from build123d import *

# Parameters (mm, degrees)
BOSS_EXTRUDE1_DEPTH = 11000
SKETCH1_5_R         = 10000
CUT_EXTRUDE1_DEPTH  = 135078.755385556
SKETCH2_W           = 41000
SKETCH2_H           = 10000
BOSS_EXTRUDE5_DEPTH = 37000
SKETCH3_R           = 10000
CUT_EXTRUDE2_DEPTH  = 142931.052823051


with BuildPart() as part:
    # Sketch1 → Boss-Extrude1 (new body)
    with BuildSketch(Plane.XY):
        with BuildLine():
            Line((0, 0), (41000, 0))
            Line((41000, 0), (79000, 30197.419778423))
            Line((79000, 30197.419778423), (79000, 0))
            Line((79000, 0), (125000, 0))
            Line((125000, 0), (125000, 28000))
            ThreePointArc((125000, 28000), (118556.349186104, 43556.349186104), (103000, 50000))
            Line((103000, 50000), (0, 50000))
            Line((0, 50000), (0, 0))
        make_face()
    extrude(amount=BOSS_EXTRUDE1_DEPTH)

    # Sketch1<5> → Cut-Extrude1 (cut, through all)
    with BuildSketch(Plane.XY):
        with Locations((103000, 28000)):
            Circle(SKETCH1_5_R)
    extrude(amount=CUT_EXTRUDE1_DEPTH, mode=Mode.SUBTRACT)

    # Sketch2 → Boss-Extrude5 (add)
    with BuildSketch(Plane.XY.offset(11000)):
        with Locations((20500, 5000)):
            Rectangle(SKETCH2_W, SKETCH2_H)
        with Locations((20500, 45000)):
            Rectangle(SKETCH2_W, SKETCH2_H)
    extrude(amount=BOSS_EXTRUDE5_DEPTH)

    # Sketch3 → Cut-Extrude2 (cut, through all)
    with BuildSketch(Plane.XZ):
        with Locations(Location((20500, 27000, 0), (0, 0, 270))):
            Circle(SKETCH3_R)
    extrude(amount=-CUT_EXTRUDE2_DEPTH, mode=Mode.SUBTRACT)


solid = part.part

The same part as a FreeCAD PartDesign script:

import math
import FreeCAD as App
import Part
import Sketcher

V = App.Vector
Q = App.Units.Quantity


def add_polygon(sketch, points):
    """Adds a closed chain of lines whose ends are joined by coincident constraints."""
    first, n = sketch.GeometryCount, len(points)
    for a, b in zip(points, points[1:] + points[:1]):
        sketch.addGeometry(Part.LineSegment(App.Vector(*a, 0), App.Vector(*b, 0)), False)
    for i in range(n):
        sketch.addConstraint(Sketcher.Constraint("Coincident", first + i, 2, first + (i + 1) % n, 1))

doc = App.newDocument("Part")
params = doc.addObject("Spreadsheet::Sheet", "Params")
for row, (alias, value) in enumerate([
    ("sketch1_radius", "22000 mm"),
    ("sketch1_width", "41000 mm"),
    ("sketch1_width2", "46000 mm"),
    ("sketch1_width3", "103000 mm"),
    ("sketch1_height", "28000 mm"),
    ("pad1_length", "11000 mm"),
    ("sketch2_diameter", "20000 mm"),
    ("sketch3_width", "41000 mm"),
    ("sketch3_height", "10000 mm"),
    ("pad2_length", "37000 mm"),
    ("sketch4_diameter", "20000 mm"),
], start=1):
    params.set(f"A{row}", alias)
    params.set(f"B{row}", "=" + value)
    params.setAlias(f"B{row}", alias)

body = doc.addObject("PartDesign::Body", "Body")

sketch1 = body.newObject("Sketcher::SketchObject", "Sketch")
sketch1.AttachmentSupport = (doc.getObject("XY_Plane"), [""])
sketch1.MapMode = "FlatFace"
sketch1.addGeometry([
    Part.LineSegment(V(0, 0, 0), V(41000, 0, 0)),
    Part.LineSegment(V(41000, 0, 0), V(79000, 30197, 0)),
    Part.LineSegment(V(79000, 30197, 0), V(79000, 0, 0)),
    Part.LineSegment(V(79000, 0, 0), V(125000, 0, 0)),
    Part.LineSegment(V(125000, 0, 0), V(125000, 28000, 0)),
    Part.ArcOfCircle(Part.Circle(V(103000, 28000, 0), V(0, 0, 1), 22000), math.radians(0), math.radians(90)),
    Part.LineSegment(V(103000, 50000, 0), V(0, 50000, 0)),
    Part.LineSegment(V(0, 50000, 0), V(0, 0, 0)),
], False)
sketch1.addConstraint([
    Sketcher.Constraint("Coincident", 0, 2, 1, 1),
    Sketcher.Constraint("Coincident", 1, 2, 2, 1),
    Sketcher.Constraint("Coincident", 2, 2, 3, 1),
    Sketcher.Constraint("Coincident", 3, 2, 4, 1),
    Sketcher.Constraint("Coincident", 4, 2, 5, 1),
    Sketcher.Constraint("Coincident", 5, 2, 6, 1),
    Sketcher.Constraint("Coincident", 6, 2, 7, 1),
    Sketcher.Constraint("Coincident", 7, 2, 0, 1),
    Sketcher.Constraint("Horizontal", 0),
    Sketcher.Constraint("Vertical", 2),
    Sketcher.Constraint("Horizontal", 3),
    Sketcher.Constraint("Vertical", 4),
    Sketcher.Constraint("Horizontal", 6),
    Sketcher.Constraint("Vertical", 7),
    Sketcher.Constraint("Coincident", 7, 2, -1, 1),
    Sketcher.Constraint("PointOnObject", 2, 2, -1),
    Sketcher.Constraint("Horizontal", 5, 3, 4, 2),
    Sketcher.Constraint("Radius", 5, Q("22000 mm")),
    Sketcher.Constraint("DistanceX", 0, 1, 0, 2, Q("41000 mm")),
    Sketcher.Constraint("DistanceX", 3, 1, 3, 2, Q("46000 mm")),
    Sketcher.Constraint("DistanceX", 6, 2, 6, 1, Q("103000 mm")),
    Sketcher.Constraint("DistanceY", 4, 1, 4, 2, Q("28000 mm")),
    Sketcher.Constraint("DistanceX", -1, 1, 5, 3, Q("103000 mm")),
    Sketcher.Constraint("DistanceY", 2, 2, 2, 1, Q("30197.419778 mm")),
])
sketch1.setExpression("Constraints[17]", "Params.sketch1_radius")
sketch1.setExpression("Constraints[18]", "Params.sketch1_width")
sketch1.setExpression("Constraints[19]", "Params.sketch1_width2")
sketch1.setExpression("Constraints[20]", "Params.sketch1_width3")
sketch1.setExpression("Constraints[21]", "Params.sketch1_height")
pad1 = body.newObject("PartDesign::Pad", "Pad")
pad1.Profile = sketch1
pad1.setExpression("Length", "Params.pad1_length")

sketch2 = body.newObject("Sketcher::SketchObject", "Sketch001")
sketch2.AttachmentSupport = (doc.getObject("XY_Plane"), [""])
sketch2.MapMode = "FlatFace"
sketch2.addGeometry(Part.Circle(V(103000, 28000, 0), V(0, 0, 1), 10000), False)
sketch2.addConstraint([
    Sketcher.Constraint("Diameter", 0, Q("20000 mm")),
    Sketcher.Constraint("DistanceX", -1, 1, 0, 3, Q("103000 mm")),
    Sketcher.Constraint("DistanceY", -1, 1, 0, 3, Q("28000 mm")),
])
sketch2.setExpression("Constraints[0]", "Params.sketch2_diameter")
pocket1 = body.newObject("PartDesign::Pocket", "Pocket")
pocket1.Profile = sketch2
pocket1.Type = "ThroughAll"
pocket1.Reversed = True

sketch3 = body.newObject("Sketcher::SketchObject", "Sketch002")
sketch3.AttachmentSupport = (doc.getObject("XY_Plane"), [""])
sketch3.MapMode = "FlatFace"
sketch3.AttachmentOffset = App.Placement(V(0, 0, 11000), App.Rotation())
add_polygon(sketch3, [(0, 10000), (0, 0), (41000, 0), (41000, 10000)])
add_polygon(sketch3, [(0, 50000), (0, 40000), (41000, 40000), (41000, 50000)])
sketch3.addConstraint([
    Sketcher.Constraint("Vertical", 0),
    Sketcher.Constraint("Horizontal", 1),
    Sketcher.Constraint("Vertical", 2),
    Sketcher.Constraint("Horizontal", 3),
    Sketcher.Constraint("Vertical", 4),
    Sketcher.Constraint("Horizontal", 5),
    Sketcher.Constraint("Vertical", 6),
    Sketcher.Constraint("Horizontal", 7),
    Sketcher.Constraint("Coincident", 0, 2, -1, 1),
    Sketcher.Constraint("PointOnObject", 4, 2, -2),
    Sketcher.Constraint("Vertical", 2, 2, 5, 2),
    Sketcher.Constraint("Equal", 2, 4),
    Sketcher.Constraint("DistanceX", 1, 1, 1, 2, Q("41000 mm")),
    Sketcher.Constraint("DistanceY", 0, 2, 0, 1, Q("10000 mm")),
    Sketcher.Constraint("DistanceY", -1, 1, 4, 2, Q("40000 mm")),
])
sketch3.setExpression("Constraints[20]", "Params.sketch3_width")
sketch3.setExpression("Constraints[21]", "Params.sketch3_height")
pad2 = body.newObject("PartDesign::Pad", "Pad001")
pad2.Profile = sketch3
pad2.setExpression("Length", "Params.pad2_length")

sketch4 = body.newObject("Sketcher::SketchObject", "Sketch003")
sketch4.AttachmentSupport = (doc.getObject("XZ_Plane"), [""])
sketch4.MapMode = "FlatFace"
sketch4.addGeometry(Part.Circle(V(20500, 27000, 0), V(0, 0, 1), 10000), False)
sketch4.addConstraint([
    Sketcher.Constraint("Diameter", 0, Q("20000 mm")),
    Sketcher.Constraint("DistanceX", -1, 1, 0, 3, Q("20500 mm")),
    Sketcher.Constraint("DistanceY", -1, 1, 0, 3, Q("27000 mm")),
])
sketch4.setExpression("Constraints[0]", "Params.sketch4_diameter")
pocket2 = body.newObject("PartDesign::Pocket", "Pocket001")
pocket2.Profile = sketch4
pocket2.Type = "ThroughAll"

doc.recompute()
